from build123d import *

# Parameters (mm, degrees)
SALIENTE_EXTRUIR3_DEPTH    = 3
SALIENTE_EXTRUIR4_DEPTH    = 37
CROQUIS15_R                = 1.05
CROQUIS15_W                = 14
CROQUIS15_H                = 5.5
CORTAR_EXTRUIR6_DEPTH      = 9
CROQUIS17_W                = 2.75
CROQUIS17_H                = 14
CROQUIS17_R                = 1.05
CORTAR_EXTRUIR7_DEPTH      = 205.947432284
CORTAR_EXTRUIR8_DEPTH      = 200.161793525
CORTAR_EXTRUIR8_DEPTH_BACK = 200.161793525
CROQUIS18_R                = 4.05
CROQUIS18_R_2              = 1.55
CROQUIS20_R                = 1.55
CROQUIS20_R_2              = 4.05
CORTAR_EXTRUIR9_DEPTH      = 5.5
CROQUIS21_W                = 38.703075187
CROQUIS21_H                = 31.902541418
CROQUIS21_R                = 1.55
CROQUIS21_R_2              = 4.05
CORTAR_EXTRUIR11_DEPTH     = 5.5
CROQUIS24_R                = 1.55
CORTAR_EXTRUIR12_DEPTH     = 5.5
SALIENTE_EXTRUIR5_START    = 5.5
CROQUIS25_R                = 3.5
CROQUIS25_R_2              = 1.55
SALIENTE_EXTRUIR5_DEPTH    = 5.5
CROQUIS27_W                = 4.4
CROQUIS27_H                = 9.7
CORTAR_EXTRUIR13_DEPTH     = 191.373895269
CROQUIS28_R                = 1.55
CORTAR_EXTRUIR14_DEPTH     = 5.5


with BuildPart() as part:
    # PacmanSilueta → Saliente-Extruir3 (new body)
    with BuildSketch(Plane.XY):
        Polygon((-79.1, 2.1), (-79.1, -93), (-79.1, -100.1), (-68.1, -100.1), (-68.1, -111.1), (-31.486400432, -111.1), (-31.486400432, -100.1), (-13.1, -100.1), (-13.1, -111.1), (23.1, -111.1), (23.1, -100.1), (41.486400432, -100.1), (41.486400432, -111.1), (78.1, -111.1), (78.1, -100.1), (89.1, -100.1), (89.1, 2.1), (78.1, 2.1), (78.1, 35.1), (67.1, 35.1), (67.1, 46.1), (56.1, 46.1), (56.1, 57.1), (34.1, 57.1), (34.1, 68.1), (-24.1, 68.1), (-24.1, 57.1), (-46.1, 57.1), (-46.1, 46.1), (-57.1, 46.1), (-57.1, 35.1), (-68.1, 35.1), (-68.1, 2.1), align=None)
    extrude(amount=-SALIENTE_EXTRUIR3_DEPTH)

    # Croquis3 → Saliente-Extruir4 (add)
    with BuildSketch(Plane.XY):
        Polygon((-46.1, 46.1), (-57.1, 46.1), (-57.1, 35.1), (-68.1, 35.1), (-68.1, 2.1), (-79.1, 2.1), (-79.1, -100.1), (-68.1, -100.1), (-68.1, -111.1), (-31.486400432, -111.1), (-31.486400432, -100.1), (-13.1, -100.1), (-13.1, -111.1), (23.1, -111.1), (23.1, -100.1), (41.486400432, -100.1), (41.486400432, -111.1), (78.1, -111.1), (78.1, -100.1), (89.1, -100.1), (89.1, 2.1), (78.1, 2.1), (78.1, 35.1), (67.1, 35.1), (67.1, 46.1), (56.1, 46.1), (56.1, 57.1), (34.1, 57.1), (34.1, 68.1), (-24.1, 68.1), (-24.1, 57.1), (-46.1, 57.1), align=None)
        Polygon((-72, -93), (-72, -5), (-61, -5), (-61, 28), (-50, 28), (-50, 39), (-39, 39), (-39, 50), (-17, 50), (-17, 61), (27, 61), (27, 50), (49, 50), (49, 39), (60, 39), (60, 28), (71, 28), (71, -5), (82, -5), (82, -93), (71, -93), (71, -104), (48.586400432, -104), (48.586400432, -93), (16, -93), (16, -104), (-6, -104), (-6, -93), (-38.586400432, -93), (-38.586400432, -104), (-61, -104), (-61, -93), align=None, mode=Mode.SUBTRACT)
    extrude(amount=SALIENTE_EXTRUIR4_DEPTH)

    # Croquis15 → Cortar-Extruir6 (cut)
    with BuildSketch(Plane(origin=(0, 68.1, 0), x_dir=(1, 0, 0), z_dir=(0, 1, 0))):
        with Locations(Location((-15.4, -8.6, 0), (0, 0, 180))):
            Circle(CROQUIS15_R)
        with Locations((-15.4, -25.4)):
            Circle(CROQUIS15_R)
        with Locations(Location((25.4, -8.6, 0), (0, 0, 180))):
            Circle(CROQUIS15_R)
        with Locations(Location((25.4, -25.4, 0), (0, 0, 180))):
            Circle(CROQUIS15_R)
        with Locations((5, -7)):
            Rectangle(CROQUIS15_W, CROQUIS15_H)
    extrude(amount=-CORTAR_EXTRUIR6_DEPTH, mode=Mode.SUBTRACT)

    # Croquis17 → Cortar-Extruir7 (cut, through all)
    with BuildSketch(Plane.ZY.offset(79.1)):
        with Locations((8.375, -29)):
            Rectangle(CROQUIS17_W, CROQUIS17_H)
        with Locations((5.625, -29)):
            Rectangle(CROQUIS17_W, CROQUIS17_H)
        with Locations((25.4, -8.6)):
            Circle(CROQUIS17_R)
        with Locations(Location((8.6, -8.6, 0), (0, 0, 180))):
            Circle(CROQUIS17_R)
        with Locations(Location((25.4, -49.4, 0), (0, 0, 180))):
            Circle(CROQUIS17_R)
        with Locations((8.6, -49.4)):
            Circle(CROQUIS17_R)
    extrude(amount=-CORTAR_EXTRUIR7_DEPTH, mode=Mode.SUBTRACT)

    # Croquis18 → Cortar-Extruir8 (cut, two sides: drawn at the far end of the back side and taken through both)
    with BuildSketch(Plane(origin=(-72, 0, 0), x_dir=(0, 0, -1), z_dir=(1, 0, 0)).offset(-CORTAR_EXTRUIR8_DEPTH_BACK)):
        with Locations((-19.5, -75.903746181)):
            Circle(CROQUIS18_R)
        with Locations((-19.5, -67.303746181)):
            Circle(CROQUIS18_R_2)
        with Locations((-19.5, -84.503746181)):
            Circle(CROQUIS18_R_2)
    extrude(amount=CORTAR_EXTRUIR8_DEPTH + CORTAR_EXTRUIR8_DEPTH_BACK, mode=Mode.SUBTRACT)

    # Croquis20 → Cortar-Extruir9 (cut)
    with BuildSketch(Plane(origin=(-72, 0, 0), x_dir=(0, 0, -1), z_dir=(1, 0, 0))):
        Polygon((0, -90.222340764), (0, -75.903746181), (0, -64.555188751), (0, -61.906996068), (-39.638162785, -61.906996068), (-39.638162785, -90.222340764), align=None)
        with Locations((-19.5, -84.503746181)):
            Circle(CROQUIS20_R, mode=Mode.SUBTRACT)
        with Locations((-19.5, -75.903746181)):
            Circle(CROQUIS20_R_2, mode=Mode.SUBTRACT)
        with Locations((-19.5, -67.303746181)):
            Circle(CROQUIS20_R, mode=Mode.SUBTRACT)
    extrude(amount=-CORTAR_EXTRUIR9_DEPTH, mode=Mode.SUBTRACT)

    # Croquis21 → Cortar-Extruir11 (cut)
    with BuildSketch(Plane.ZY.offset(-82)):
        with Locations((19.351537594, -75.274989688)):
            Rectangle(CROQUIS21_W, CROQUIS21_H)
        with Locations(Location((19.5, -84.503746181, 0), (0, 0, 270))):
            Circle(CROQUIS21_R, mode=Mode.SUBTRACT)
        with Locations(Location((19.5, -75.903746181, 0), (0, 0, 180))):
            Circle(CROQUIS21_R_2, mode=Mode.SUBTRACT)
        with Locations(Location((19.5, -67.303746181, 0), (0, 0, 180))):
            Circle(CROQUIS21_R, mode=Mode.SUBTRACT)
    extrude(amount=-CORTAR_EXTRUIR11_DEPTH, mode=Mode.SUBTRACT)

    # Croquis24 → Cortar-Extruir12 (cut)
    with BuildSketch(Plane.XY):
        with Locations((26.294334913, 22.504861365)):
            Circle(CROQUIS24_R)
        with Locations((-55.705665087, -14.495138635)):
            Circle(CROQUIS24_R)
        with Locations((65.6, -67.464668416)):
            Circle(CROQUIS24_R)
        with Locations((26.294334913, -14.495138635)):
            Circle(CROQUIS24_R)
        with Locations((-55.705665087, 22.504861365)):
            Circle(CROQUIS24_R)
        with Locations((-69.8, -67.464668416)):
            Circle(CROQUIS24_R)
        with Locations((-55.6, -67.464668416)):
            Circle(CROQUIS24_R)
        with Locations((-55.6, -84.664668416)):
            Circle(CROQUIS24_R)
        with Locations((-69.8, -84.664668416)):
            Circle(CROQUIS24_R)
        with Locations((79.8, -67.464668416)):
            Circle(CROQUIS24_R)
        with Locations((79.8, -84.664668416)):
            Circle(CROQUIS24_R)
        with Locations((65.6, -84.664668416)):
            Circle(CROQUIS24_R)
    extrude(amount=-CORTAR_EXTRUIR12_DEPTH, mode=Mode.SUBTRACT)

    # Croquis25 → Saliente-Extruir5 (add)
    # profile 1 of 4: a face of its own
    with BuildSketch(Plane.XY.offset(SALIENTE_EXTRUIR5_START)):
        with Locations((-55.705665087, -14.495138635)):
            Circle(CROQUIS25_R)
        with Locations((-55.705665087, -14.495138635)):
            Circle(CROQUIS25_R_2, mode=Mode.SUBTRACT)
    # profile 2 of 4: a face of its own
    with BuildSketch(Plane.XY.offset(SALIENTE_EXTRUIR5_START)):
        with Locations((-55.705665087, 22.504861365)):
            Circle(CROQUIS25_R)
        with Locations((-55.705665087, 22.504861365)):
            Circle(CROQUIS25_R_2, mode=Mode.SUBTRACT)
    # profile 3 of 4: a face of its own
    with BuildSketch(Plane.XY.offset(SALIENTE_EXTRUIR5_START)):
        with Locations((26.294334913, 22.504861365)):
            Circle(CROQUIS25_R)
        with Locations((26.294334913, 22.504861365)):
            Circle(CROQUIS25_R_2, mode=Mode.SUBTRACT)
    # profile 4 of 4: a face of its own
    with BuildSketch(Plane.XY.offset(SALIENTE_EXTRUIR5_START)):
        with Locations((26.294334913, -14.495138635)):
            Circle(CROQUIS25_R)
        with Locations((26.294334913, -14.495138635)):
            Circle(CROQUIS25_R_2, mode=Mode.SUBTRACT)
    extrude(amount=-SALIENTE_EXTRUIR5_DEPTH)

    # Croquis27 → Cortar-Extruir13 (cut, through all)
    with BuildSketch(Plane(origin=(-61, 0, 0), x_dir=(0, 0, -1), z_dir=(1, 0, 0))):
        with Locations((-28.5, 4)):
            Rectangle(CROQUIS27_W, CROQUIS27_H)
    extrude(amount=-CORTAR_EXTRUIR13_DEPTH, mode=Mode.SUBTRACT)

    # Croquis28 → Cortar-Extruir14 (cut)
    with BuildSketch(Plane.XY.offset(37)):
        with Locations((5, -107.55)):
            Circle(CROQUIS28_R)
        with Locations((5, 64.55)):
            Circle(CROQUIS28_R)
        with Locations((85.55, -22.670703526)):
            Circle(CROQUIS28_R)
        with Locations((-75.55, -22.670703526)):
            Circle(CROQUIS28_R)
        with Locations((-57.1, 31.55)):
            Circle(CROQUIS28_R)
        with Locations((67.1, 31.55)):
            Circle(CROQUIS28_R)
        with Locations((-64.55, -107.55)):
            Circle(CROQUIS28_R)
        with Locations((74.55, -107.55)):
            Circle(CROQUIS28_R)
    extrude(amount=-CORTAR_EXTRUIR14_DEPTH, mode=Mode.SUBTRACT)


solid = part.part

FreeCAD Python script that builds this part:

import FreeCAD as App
import Part
import Sketcher

V = App.Vector


def add_polygon(sketch, points):
    """Adds a closed chain of lines whose ends are joined by coincident constraints."""
    first, n = sketch.GeometryCount, len(points)
    for a, b in zip(points, points[1:] + points[:1]):
        sketch.addGeometry(Part.LineSegment(App.Vector(*a, 0), App.Vector(*b, 0)), False)
    for i in range(n):
        sketch.addConstraint(Sketcher.Constraint("Coincident", first + i, 2, first + (i + 1) % n, 1))

doc = App.newDocument("Part")
params = doc.addObject("Spreadsheet::Sheet", "Params")
for row, (alias, value) in enumerate([
    ("sketch1_width", "11 mm"),
    ("sketch1_width2", "22 mm"),
    ("sketch1_height", "33 mm"),
    ("sketch1_width3", "36.2 mm"),
    ("sketch1_width4", "58.2 mm"),
    ("pad1_length", "3 mm"),
    ("sketch2_width", "11 mm"),
    ("sketch2_width2", "22 mm"),
    ("sketch2_width3", "44 mm"),
    ("sketch2_height", "33 mm"),
    ("sketch2_height2", "88 mm"),
    ("pad2_length", "37 mm"),
    ("sketch3_diameter", "2.1 mm"),
    ("sketch3_width", "14 mm"),
    ("sketch3_height", "5.5 mm"),
    ("pocket1_length", "9 mm"),
    ("sketch4_diameter", "2.1 mm"),
    ("sketch4_width", "14 mm"),
    ("sketch4_height", "5.5 mm"),
    ("sketch5_diameter", "8.1 mm"),
    ("sketch5_diameter2", "3.1 mm"),
    ("sketch6_diameter", "3.1 mm"),
    ("sketch6_diameter2", "8.1 mm"),
    ("pocket4_length", "5.5 mm"),
    ("sketch7_diameter", "3.1 mm"),
    ("sketch7_diameter2", "8.1 mm"),
    ("pocket5_length", "5.5 mm"),
    ("sketch8_diameter", "3.1 mm"),
    ("pocket6_length", "5.5 mm"),
    ("sketch9_diameter", "7 mm"),
    ("sketch9_diameter2", "3.1 mm"),
    ("pad3_length", "5.5 mm"),
    ("sketch10_width", "9.7 mm"),
    ("sketch10_height", "4.4 mm"),
    ("sketch11_diameter", "3.1 mm"),
    ("pocket8_length", "5.5 mm"),
], start=1):
    params.set(f"A{row}", alias)
    params.set(f"B{row}", "=" + value)
    params.setAlias(f"B{row}", alias)

body = doc.addObject("PartDesign::Body", "Body")

# Sketch on XY plane
sketch1 = doc.addObject("Sketcher::SketchObject", "Sketch")
body.addObject(sketch1)
sketch1.AttachmentSupport = (doc.XY_Plane, [""])
sketch1.MapMode = "FlatFace"
add_polygon(sketch1, [(-79, 2), (-79, -100), (-68, -100), (-68, -111), (-31, -111), (-31, -100), (-13, -100), (-13, -111), (23, -111), (23, -100), (41, -100), (41, -111), (78, -111), (78, -100), (89, -100), (89, 2), (78, 2), (78, 35), (67, 35), (67, 46), (56, 46), (56, 57), (34, 57), (34, 68), (-24, 68), (-24, 57), (-46, 57), (-46, 46), (-57, 46), (-57, 35), (-68, 35), (-68, 2)])  # lines 0-31
sketch1.addConstraint([
    Sketcher.Constraint("Vertical", 0),
    Sketcher.Constraint("Horizontal", 1),
    Sketcher.Constraint("Vertical", 2),
    Sketcher.Constraint("Horizontal", 3),
    Sketcher.Constraint("Vertical", 4),
    Sketcher.Constraint("Horizontal", 5),
    Sketcher.Constraint("Vertical", 6),
    Sketcher.Constraint("Horizontal", 7),
    Sketcher.Constraint("Vertical", 8),
    Sketcher.Constraint("Horizontal", 9),
    Sketcher.Constraint("Vertical", 10),
    Sketcher.Constraint("Horizontal", 11),
    Sketcher.Constraint("Vertical", 12),
    Sketcher.Constraint("Horizontal", 13),
    Sketcher.Constraint("Vertical", 14),
    Sketcher.Constraint("Horizontal", 15),
    Sketcher.Constraint("Vertical", 16),
    Sketcher.Constraint("Horizontal", 17),
    Sketcher.Constraint("Vertical", 18),
    Sketcher.Constraint("Horizontal", 19),
    Sketcher.Constraint("Vertical", 20),
    Sketcher.Constraint("Horizontal", 21),
    Sketcher.Constraint("Vertical", 22),
    Sketcher.Constraint("Horizontal", 23),
    Sketcher.Constraint("Vertical", 24),
    Sketcher.Constraint("Horizontal", 25),
    Sketcher.Constraint("Vertical", 26),
    Sketcher.Constraint("Horizontal", 27),
    Sketcher.Constraint("Vertical", 28),
    Sketcher.Constraint("Horizontal", 29),
    Sketcher.Constraint("Vertical", 30),
    Sketcher.Constraint("Horizontal", 31),
    Sketcher.Constraint("Horizontal", 1, 2, 4, 2),
    Sketcher.Constraint("Horizontal", 3, 2, 6, 2),
    Sketcher.Constraint("Horizontal", 5, 2, 8, 2),
    Sketcher.Constraint("Horizontal", 7, 2, 10, 2),
    Sketcher.Constraint("Horizontal", 9, 2, 12, 2),
    Sketcher.Constraint("Horizontal", 21, 2, 24, 2),
    Sketcher.Constraint("Horizontal", 19, 2, 26, 2),
    Sketcher.Constraint("Horizontal", 17, 2, 28, 2),
    Sketcher.Constraint("Horizontal", 15, 2, 30, 2),
    Sketcher.Constraint("Vertical", 12, 2, 15, 2),
    Sketcher.Constraint("Vertical", 2, 2, 29, 2),
    Sketcher.Constraint("Equal", 5, 9),
    Sketcher.Constraint("Equal", 3, 11),
    Sketcher.Constraint("Equal", 1, 13),
    Sketcher.Constraint("Equal", 15, 17),
    Sketcher.Constraint("Equal", 17, 19),
    Sketcher.Constraint("Equal", 21, 25),
    Sketcher.Constraint("Equal", 19, 27),
    Sketcher.Constraint("Equal", 27, 29),
    Sketcher.Constraint("Equal", 31, 2),
    Sketcher.Constraint("Equal", 12, 18),
    Sketcher.Constraint("Equal", 18, 20),
    Sketcher.Constraint("Equal", 20, 22),
    Sketcher.Constraint("DistanceX", 1, 1, 1, 2, 11.0),
    Sketcher.Constraint("DistanceX", 21, 2, 21, 1, 22.0),
    Sketcher.Constraint("DistanceY", 16, 1, 16, 2, 33.0),
    Sketcher.Constraint("DistanceX", 7, 1, 7, 2, 36.2),
    Sketcher.Constraint("DistanceX", 23, 2, 23, 1, 58.2),
    Sketcher.Constraint("DistanceY", 0, 2, 0, 1, 102.2),
    Sketcher.Constraint("DistanceX", 0, 2, -1, 1, 79.1),
    Sketcher.Constraint("DistanceY", 0, 2, -1, 1, 100.1),
    Sketcher.Constraint("DistanceX", 3, 1, 3, 2, 36.6136),
])
sketch1.setExpression("Constraints[87]", "Params.sketch1_width")
sketch1.setExpression("Constraints[88]", "Params.sketch1_width2")
sketch1.setExpression("Constraints[89]", "Params.sketch1_height")
sketch1.setExpression("Constraints[90]", "Params.sketch1_width3")
sketch1.setExpression("Constraints[91]", "Params.sketch1_width4")
pad1 = doc.addObject("PartDesign::Pad", "Pad")
body.addObject(pad1)
pad1.Profile = sketch1
pad1.setExpression("Length", "Params.pad1_length")
pad1.Reversed = True

# Sketch on XY plane
sketch2 = doc.addObject("Sketcher::SketchObject", "Sketch001")
body.addObject(sketch2)
sketch2.AttachmentSupport = (doc.XY_Plane, [""])
sketch2.MapMode = "FlatFace"
add_polygon(sketch2, [(-46, 46), (-57, 46), (-57, 35), (-68, 35), (-68, 2), (-79, 2), (-79, -100), (-68, -100), (-68, -111), (-31, -111), (-31, -100), (-13, -100), (-13, -111), (23, -111), (23, -100), (41, -100), (41, -111), (78, -111), (78, -100), (89, -100), (89, 2), (78, 2), (78, 35), (67, 35), (67, 46), (56, 46), (56, 57), (34, 57), (34, 68), (-24, 68), (-24, 57), (-46, 57)])  # lines 0-31
add_polygon(sketch2, [(-61, -93), (-72, -93), (-72, -5), (-61, -5), (-61, 28), (-50, 28), (-50, 39), (-39, 39), (-39, 50), (-17, 50), (-17, 61), (27, 61), (27, 50), (49, 50), (49, 39), (60, 39), (60, 28), (71, 28), (71, -5), (82, -5), (82, -93), (71, -93), (71, -104), (49, -104), (49, -93), (16, -93), (16, -104), (-6, -104), (-6, -93), (-39, -93), (-39, -104), (-61, -104)])  # lines 32-63
sketch2.addConstraint([
    Sketcher.Constraint("Horizontal", 0),
    Sketcher.Constraint("Vertical", 1),
    Sketcher.Constraint("Horizontal", 2),
    Sketcher.Constraint("Vertical", 3),
    Sketcher.Constraint("Horizontal", 4),
    Sketcher.Constraint("Vertical", 5),
    Sketcher.Constraint("Horizontal", 6),
    Sketcher.Constraint("Vertical", 7),
    Sketcher.Constraint("Horizontal", 8),
    Sketcher.Constraint("Vertical", 9),
    Sketcher.Constraint("Horizontal", 10),
    Sketcher.Constraint("Vertical", 11),
    Sketcher.Constraint("Horizontal", 12),
    Sketcher.Constraint("Vertical", 13),
    Sketcher.Constraint("Horizontal", 14),
    Sketcher.Constraint("Vertical", 15),
    Sketcher.Constraint("Horizontal", 16),
    Sketcher.Constraint("Vertical", 17),
    Sketcher.Constraint("Horizontal", 18),
    Sketcher.Constraint("Vertical", 19),
    Sketcher.Constraint("Horizontal", 20),
    Sketcher.Constraint("Vertical", 21),
    Sketcher.Constraint("Horizontal", 22),
    Sketcher.Constraint("Vertical", 23),
    Sketcher.Constraint("Horizontal", 24),
    Sketcher.Constraint("Vertical", 25),
    Sketcher.Constraint("Horizontal", 26),
    Sketcher.Constraint("Vertical", 27),
    Sketcher.Constraint("Horizontal", 28),
    Sketcher.Constraint("Vertical", 29),
    Sketcher.Constraint("Horizontal", 30),
    Sketcher.Constraint("Vertical", 31),
    Sketcher.Constraint("Horizontal", 32),
    Sketcher.Constraint("Vertical", 33),
    Sketcher.Constraint("Horizontal", 34),
    Sketcher.Constraint("Vertical", 35),
    Sketcher.Constraint("Horizontal", 36),
    Sketcher.Constraint("Vertical", 37),
    Sketcher.Constraint("Horizontal", 38),
    Sketcher.Constraint("Vertical", 39),
    Sketcher.Constraint("Horizontal", 40),
    Sketcher.Constraint("Vertical", 41),
    Sketcher.Constraint("Horizontal", 42),
    Sketcher.Constraint("Vertical", 43),
    Sketcher.Constraint("Horizontal", 44),
    Sketcher.Constraint("Vertical", 45),
    Sketcher.Constraint("Horizontal", 46),
    Sketcher.Constraint("Vertical", 47),
    Sketcher.Constraint("Horizontal", 48),
    Sketcher.Constraint("Vertical", 49),
    Sketcher.Constraint("Horizontal", 50),
    Sketcher.Constraint("Vertical", 51),
    Sketcher.Constraint("Horizontal", 52),
    Sketcher.Constraint("Vertical", 53),
    Sketcher.Constraint("Horizontal", 54),
    Sketcher.Constraint("Vertical", 55),
    Sketcher.Constraint("Horizontal", 56),
    Sketcher.Constraint("Vertical", 57),
    Sketcher.Constraint("Horizontal", 58),
    Sketcher.Constraint("Vertical", 59),
    Sketcher.Constraint("Horizontal", 60),
    Sketcher.Constraint("Vertical", 61),
    Sketcher.Constraint("Horizontal", 62),
    Sketcher.Constraint("Vertical", 63),
    Sketcher.Constraint("Horizontal", 6, 2, 9, 2),
    Sketcher.Constraint("Horizontal", 8, 2, 11, 2),
    Sketcher.Constraint("Horizontal", 10, 2, 13, 2),
    Sketcher.Constraint("Horizontal", 12, 2, 15, 2),
    Sketcher.Constraint("Horizontal", 14, 2, 17, 2),
    Sketcher.Constraint("Horizontal", 4, 2, 19, 2),
    Sketcher.Constraint("Horizontal", 2, 2, 21, 2),
    Sketcher.Constraint("Horizontal", 0, 2, 23, 2),
    Sketcher.Constraint("Horizontal", 26, 2, 29, 2),
    Sketcher.Constraint("Horizontal", 40, 2, 43, 2),
    Sketcher.Constraint("Horizontal", 38, 2, 45, 2),
    Sketcher.Constraint("Horizontal", 36, 2, 47, 2),
    Sketcher.Constraint("Horizontal", 34, 2, 49, 2),
    Sketcher.Constraint("Horizontal", 32, 2, 51, 2),
    Sketcher.Constraint("Horizontal", 52, 2, 55, 2),
    Sketcher.Constraint("Horizontal", 54, 2, 57, 2),
    Sketcher.Constraint("Horizontal", 56, 2, 59, 2),
    Sketcher.Constraint("Horizontal", 58, 2, 61, 2),
    Sketcher.Constraint("Vertical", 3, 2, 6, 2),
    Sketcher.Constraint("Vertical", 17, 2, 20, 2),
    Sketcher.Constraint("Vertical", 49, 2, 52, 2),
    Sketcher.Constraint("Vertical", 35, 2, 62, 2),
    Sketcher.Constraint("Equal", 0, 2),
    Sketcher.Constraint("Equal", 2, 4),
    Sketcher.Constraint("Equal", 10, 14),
    Sketcher.Constraint("Equal", 8, 16),
    Sketcher.Constraint("Equal", 6, 18),
    Sketcher.Constraint("Equal", 20, 22),
    Sketcher.Constraint("Equal", 22, 24),
    Sketcher.Constraint("Equal", 26, 30),
    Sketcher.Constraint("Equal", 24, 32),
    Sketcher.Constraint("Equal", 34, 36),
    Sketcher.Constraint("Equal", 36, 38),
    Sketcher.Constraint("Equal", 30, 40),
    Sketcher.Constraint("Equal", 40, 44),
    Sketcher.Constraint("Equal", 38, 46),
    Sketcher.Constraint("Equal", 46, 48),
    Sketcher.Constraint("Equal", 48, 50),
    Sketcher.Constraint("Equal", 44, 58),
    Sketcher.Constraint("Equal", 56, 60),
    Sketcher.Constraint("Equal", 54, 62),
    Sketcher.Constraint("Equal", 52, 1),
    Sketcher.Constraint("Equal", 1, 7),
    Sketcher.Constraint("Equal", 23, 25),
    Sketcher.Constraint("Equal", 25, 27),
    Sketcher.Constraint("Equal", 21, 35),
    Sketcher.Constraint("Equal", 31, 37),
    Sketcher.Constraint("Equal", 37, 39),
    Sketcher.Constraint("Equal", 39, 41),
    Sketcher.Constraint("Equal", 47, 53),
    Sketcher.Constraint("DistanceX", 0, 2, 0, 1, 11.0),
    Sketcher.Constraint("DistanceX", 26, 2, 26, 1, 22.0),
    Sketcher.Constraint("DistanceX", 42, 1, 42, 2, 44.0),
    Sketcher.Constraint("DistanceY", 3, 2, 3, 1, 33.0),
    Sketcher.Constraint("DistanceY", 33, 1, 33, 2, 88.0),
    Sketcher.Constraint("DistanceX", 12, 1, 12, 2, 36.2),
    Sketcher.Constraint("DistanceX", 28, 2, 28, 1, 58.2),
    Sketcher.Constraint("DistanceY", 5, 2, 5, 1, 102.2),
    Sketcher.Constraint("DistanceX", 32, 2, -1, 1, 72.0),
    Sketcher.Constraint("DistanceY", 32, 2, -1, 1, 93.0),
    Sketcher.Constraint("DistanceX", 0, 2, -1, 1, 57.1),
    Sketcher.Constraint("DistanceY", -1, 1, 0, 2, 46.1),
    Sketcher.Constraint("DistanceX", 8, 1, 8, 2, 36.6136),
    Sketcher.Constraint("DistanceX", 54, 2, 54, 1, 22.4136),
])
sketch2.setExpression("Constraints[178]", "Params.sketch2_width")
sketch2.setExpression("Constraints[179]", "Params.sketch2_width2")
sketch2.setExpression("Constraints[180]", "Params.sketch2_width3")
sketch2.setExpression("Constraints[181]", "Params.sketch2_height")
sketch2.setExpression("Constraints[182]", "Params.sketch2_height2")
pad2 = doc.addObject("PartDesign::Pad", "Pad001")
body.addObject(pad2)
pad2.Profile = sketch2
pad2.setExpression("Length", "Params.pad2_length")

# Sketch on XZ plane
sketch3 = doc.addObject("Sketcher::SketchObject", "Sketch002")
body.addObject(sketch3)
sketch3.AttachmentSupport = (doc.XZ_Plane, [""])
sketch3.MapMode = "FlatFace"
sketch3.AttachmentOffset = App.Placement(V(0, 0, -68.1), App.Rotation())
sketch3.addGeometry(Part.Circle(V(-15.4, 8.6, 0), V(0, 0, 1), 1.1), False)  # 0
sketch3.addGeometry(Part.Circle(V(-15.4, 25.4, 0), V(0, 0, 1), 1.1), False)  # 1
sketch3.addGeometry(Part.Circle(V(25.4, 8.6, 0), V(0, 0, 1), 1.1), False)  # 2
sketch3.addGeometry(Part.Circle(V(25.4, 25.4, 0), V(0, 0, 1), 1.1), False)  # 3
add_polygon(sketch3, [(-2, 4.2), (-2, 9.8), (12, 9.8), (12, 4.2)])  # lines 4-7
sketch3.addConstraint([
    Sketcher.Constraint("Vertical", 4),
    Sketcher.Constraint("Horizontal", 5),
    Sketcher.Constraint("Vertical", 6),
    Sketcher.Constraint("Horizontal", 7),
    Sketcher.Constraint("Equal", 0, 1),
    Sketcher.Constraint("Equal", 1, 2),
    Sketcher.Constraint("Equal", 2, 3),
    Sketcher.Constraint("Horizontal", 0, 3, 2, 3),
    Sketcher.Constraint("Horizontal", 1, 3, 3, 3),
    Sketcher.Constraint("Vertical", 0, 3, 1, 3),
    Sketcher.Constraint("Vertical", 2, 3, 3, 3),
    Sketcher.Constraint("Diameter", 0, 2.1),
    Sketcher.Constraint("DistanceX", 5, 1, 5, 2, 14.0),
    Sketcher.Constraint("DistanceY", 4, 1, 4, 2, 5.5),
    Sketcher.Constraint("DistanceX", 4, 2, -1, 1, 2.0),
    Sketcher.Constraint("DistanceX", 0, 3, -1, 1, 15.4),
    Sketcher.Constraint("DistanceY", -1, 1, 0, 3, 8.6),
    Sketcher.Constraint("DistanceY", -1, 1, 1, 3, 25.4),
    Sketcher.Constraint("DistanceX", -1, 1, 2, 3, 25.4),
    Sketcher.Constraint("DistanceY", -1, 1, 4, 2, 9.75),
])
sketch3.setExpression("Constraints[15]", "Params.sketch3_diameter")
sketch3.setExpression("Constraints[16]", "Params.sketch3_width")
sketch3.setExpression("Constraints[17]", "Params.sketch3_height")
pocket1 = doc.addObject("PartDesign::Pocket", "Pocket")
body.addObject(pocket1)
pocket1.Profile = sketch3
pocket1.setExpression("Length", "Params.pocket1_length")
pocket1.Reversed = True

# Sketch on YZ plane
sketch4 = doc.addObject("Sketcher::SketchObject", "Sketch003")
body.addObject(sketch4)
sketch4.AttachmentSupport = (doc.YZ_Plane, [""])
sketch4.MapMode = "FlatFace"
sketch4.AttachmentOffset = App.Placement(V(0, 0, -79.1), App.Rotation())
add_polygon(sketch4, [(-36, 9.8), (-22, 9.8), (-22, 4.2), (-36, 4.2)])  # lines 0-3
sketch4.addGeometry(Part.Circle(V(-8.6, 25.4, 0), V(0, 0, 1), 1.1), False)  # 4
sketch4.addGeometry(Part.Circle(V(-8.6, 8.6, 0), V(0, 0, 1), 1.1), False)  # 5
sketch4.addGeometry(Part.Circle(V(-49.4, 25.4, 0), V(0, 0, 1), 1.1), False)  # 6
sketch4.addGeometry(Part.Circle(V(-49.4, 8.6, 0), V(0, 0, 1), 1.1), False)  # 7
sketch4.addConstraint([
    Sketcher.Constraint("Horizontal", 0),
    Sketcher.Constraint("Vertical", 1),
    Sketcher.Constraint("Horizontal", 2),
    Sketcher.Constraint("Vertical", 3),
    Sketcher.Constraint("Equal", 4, 5),
    Sketcher.Constraint("Equal", 5, 6),
    Sketcher.Constraint("Equal", 6, 7),
    Sketcher.Constraint("Horizontal", 4, 3, 6, 3),
    Sketcher.Constraint("Horizontal", 5, 3, 7, 3),
    Sketcher.Constraint("Vertical", 4, 3, 5, 3),
    Sketcher.Constraint("Vertical", 6, 3, 7, 3),
    Sketcher.Constraint("Diameter", 4, 2.1),
    Sketcher.Constraint("DistanceX", 0, 1, 0, 2, 14.0),
    Sketcher.Constraint("DistanceY", 1, 2, 1, 1, 5.5),
    Sketcher.Constraint("DistanceX", 0, 2, -1, 1, 22.0),
    Sketcher.Constraint("DistanceX", 4, 3, -1, 1, 8.6),
    Sketcher.Constraint("DistanceY", -1, 1, 4, 3, 25.4),
    Sketcher.Constraint("DistanceY", -1, 1, 5, 3, 8.6),
    Sketcher.Constraint("DistanceX", 6, 3, -1, 1, 49.4),
    Sketcher.Constraint("DistanceY", -1, 1, 0, 2, 9.75),
])
sketch4.setExpression("Constraints[15]", "Params.sketch4_diameter")
sketch4.setExpression("Constraints[16]", "Params.sketch4_width")
sketch4.setExpression("Constraints[17]", "Params.sketch4_height")
pocket2 = doc.addObject("PartDesign::Pocket", "Pocket001")
body.addObject(pocket2)
pocket2.Profile = sketch4
pocket2.Type = "ThroughAll"
pocket2.Reversed = True

# Sketch on YZ plane
sketch5 = doc.addObject("Sketcher::SketchObject", "Sketch004")
body.addObject(sketch5)
sketch5.AttachmentSupport = (doc.YZ_Plane, [""])
sketch5.MapMode = "FlatFace"
sketch5.AttachmentOffset = App.Placement(V(0, 0, -72), App.Rotation())
sketch5.addGeometry([
    Part.Circle(V(-75.9, 19.5, 0), V(0, 0, 1), 4),
    Part.Circle(V(-67.3, 19.5, 0), V(0, 0, 1), 1.6),
    Part.Circle(V(-84.5, 19.5, 0), V(0, 0, 1), 1.6),
], False)
sketch5.addConstraint([
    Sketcher.Constraint("Equal", 1, 2),
    Sketcher.Constraint("Horizontal", 0, 3, 1, 3),
    Sketcher.Constraint("Horizontal", 1, 3, 2, 3),
    Sketcher.Constraint("Diameter", 0, 8.1),
    Sketcher.Constraint("Diameter", 1, 3.1),
    Sketcher.Constraint("DistanceY", -1, 1, 0, 3, 19.5),
    Sketcher.Constraint("DistanceX", 0, 3, 1, 3, 8.6),
    Sketcher.Constraint("DistanceX", 2, 3, 0, 3, 8.6),
    Sketcher.Constraint("DistanceX", 0, 3, -1, 1, 75.903746),
])
sketch5.setExpression("Constraints[3]", "Params.sketch5_diameter")
sketch5.setExpression("Constraints[4]", "Params.sketch5_diameter2")
pocket3 = doc.addObject("PartDesign::Pocket", "Pocket002")
body.addObject(pocket3)
pocket3.Profile = sketch5
pocket3.Type = "ThroughAll"
pocket3.Midplane = True

# Sketch on YZ plane
sketch6 = doc.addObject("Sketcher::SketchObject", "Sketch005")
body.addObject(sketch6)
sketch6.AttachmentSupport = (doc.YZ_Plane, [""])
sketch6.MapMode = "FlatFace"
sketch6.AttachmentOffset = App.Placement(V(0, 0, -72), App.Rotation())
add_polygon(sketch6, [(-90.2, 0), (-61.9, 0), (-61.9, 39.6), (-90.2, 39.6)])  # lines 0-3
sketch6.addGeometry(Part.Circle(V(-84.5, 19.5, 0), V(0, 0, 1), 1.6), False)  # 4
sketch6.addGeometry(Part.Circle(V(-75.9, 19.5, 0), V(0, 0, 1), 4), False)  # 5
sketch6.addGeometry(Part.Circle(V(-67.3, 19.5, 0), V(0, 0, 1), 1.6), False)  # 6
sketch6.addConstraint([
    Sketcher.Constraint("Horizontal", 0),
    Sketcher.Constraint("Vertical", 1),
    Sketcher.Constraint("Horizontal", 2),
    Sketcher.Constraint("Vertical", 3),
    Sketcher.Constraint("Equal", 4, 6),
    Sketcher.Constraint("PointOnObject", 0, 2, -1),
    Sketcher.Constraint("Horizontal", 4, 3, 5, 3),
    Sketcher.Constraint("Horizontal", 5, 3, 6, 3),
    Sketcher.Constraint("Diameter", 4, 3.1),
    Sketcher.Constraint("Diameter", 5, 8.1),
    Sketcher.Constraint("DistanceY", -1, 1, 4, 3, 19.5),
    Sketcher.Constraint("DistanceX", 4, 3, 5, 3, 8.6),
    Sketcher.Constraint("DistanceX", 5, 3, 6, 3, 8.6),
    Sketcher.Constraint("DistanceX", 0, 1, 0, 2, 28.315345),
    Sketcher.Constraint("DistanceY", 1, 1, 1, 2, 39.638163),
    Sketcher.Constraint("DistanceX", 2, 2, -1, 1, 90.222341),
    Sketcher.Constraint("DistanceX", 6, 3, 0, 2, 5.39675),
])
sketch6.setExpression("Constraints[12]", "Params.sketch6_diameter")
sketch6.setExpression("Constraints[13]", "Params.sketch6_diameter2")
pocket4 = doc.addObject("PartDesign::Pocket", "Pocket003")
body.addObject(pocket4)
pocket4.Profile = sketch6
pocket4.setExpression("Length", "Params.pocket4_length")

# Sketch on YZ plane
sketch7 = doc.addObject("Sketcher::SketchObject", "Sketch006")
body.addObject(sketch7)
sketch7.AttachmentSupport = (doc.YZ_Plane, [""])
sketch7.MapMode = "FlatFace"
sketch7.AttachmentOffset = App.Placement(V(0, 0, 82), App.Rotation())
add_polygon(sketch7, [(-59.3, 0), (-91.2, 0), (-91.2, 38.7), (-59.3, 38.7)])  # lines 0-3
sketch7.addGeometry(Part.Circle(V(-84.5, 19.5, 0), V(0, 0, 1), 1.6), False)  # 4
sketch7.addGeometry(Part.Circle(V(-75.9, 19.5, 0), V(0, 0, 1), 4), False)  # 5
sketch7.addGeometry(Part.Circle(V(-67.3, 19.5, 0), V(0, 0, 1), 1.6), False)  # 6
sketch7.addConstraint([
    Sketcher.Constraint("Horizontal", 0),
    Sketcher.Constraint("Vertical", 1),
    Sketcher.Constraint("Horizontal", 2),
    Sketcher.Constraint("Vertical", 3),
    Sketcher.Constraint("Equal", 4, 6),
    Sketcher.Constraint("PointOnObject", 0, 2, -1),
    Sketcher.Constraint("Horizontal", 4, 3, 5, 3),
    Sketcher.Constraint("Horizontal", 5, 3, 6, 3),
    Sketcher.Constraint("Diameter", 4, 3.1),
    Sketcher.Constraint("Diameter", 5, 8.1),
    Sketcher.Constraint("DistanceY", -1, 1, 4, 3, 19.5),
    Sketcher.Constraint("DistanceX", 4, 3, 5, 3, 8.6),
    Sketcher.Constraint("DistanceX", 5, 3, 6, 3, 8.6),
    Sketcher.Constraint("DistanceX", 0, 2, 0, 1, 31.902541),
    Sketcher.Constraint("DistanceY", 1, 1, 1, 2, 38.703075),
    Sketcher.Constraint("DistanceX", 0, 2, -1, 1, 91.22626),
    Sketcher.Constraint("DistanceX", 4, 3, -1, 1, 84.503746),
])
sketch7.setExpression("Constraints[12]", "Params.sketch7_diameter")
sketch7.setExpression("Constraints[13]", "Params.sketch7_diameter2")
pocket5 = doc.addObject("PartDesign::Pocket", "Pocket004")
body.addObject(pocket5)
pocket5.Profile = sketch7
pocket5.setExpression("Length", "Params.pocket5_length")
pocket5.Reversed = True

# Sketch on XY plane
sketch8 = doc.addObject("Sketcher::SketchObject", "Sketch007")
body.addObject(sketch8)
sketch8.AttachmentSupport = (doc.XY_Plane, [""])
sketch8.MapMode = "FlatFace"
sketch8.addGeometry([
    Part.Circle(V(26.3, 22.5, 0), V(0, 0, 1), 1.6),  # 0
    Part.Circle(V(-55.7, -14.5, 0), V(0, 0, 1), 1.6),  # 1
    Part.Circle(V(65.6, -67.5, 0), V(0, 0, 1), 1.6),  # 2
    Part.Circle(V(26.3, -14.5, 0), V(0, 0, 1), 1.6),  # 3
    Part.Circle(V(-55.7, 22.5, 0), V(0, 0, 1), 1.6),  # 4
    Part.Circle(V(-69.8, -67.5, 0), V(0, 0, 1), 1.6),  # 5
    Part.Circle(V(-55.6, -67.5, 0), V(0, 0, 1), 1.6),  # 6
    Part.Circle(V(-55.6, -84.7, 0), V(0, 0, 1), 1.6),  # 7
    Part.Circle(V(-69.8, -84.7, 0), V(0, 0, 1), 1.6),  # 8
    Part.Circle(V(79.8, -67.5, 0), V(0, 0, 1), 1.6),  # 9
    Part.Circle(V(79.8, -84.7, 0), V(0, 0, 1), 1.6),  # 10
    Part.Circle(V(65.6, -84.7, 0), V(0, 0, 1), 1.6),  # 11
], False)
sketch8.addConstraint([
    Sketcher.Constraint("Equal", 0, 1),
    Sketcher.Constraint("Equal", 1, 2),
    Sketcher.Constraint("Equal", 2, 3),
    Sketcher.Constraint("Equal", 3, 4),
    Sketcher.Constraint("Equal", 4, 5),
    Sketcher.Constraint("Equal", 5, 6),
    Sketcher.Constraint("Equal", 6, 7),
    Sketcher.Constraint("Equal", 7, 8),
    Sketcher.Constraint("Equal", 8, 9),
    Sketcher.Constraint("Equal", 9, 10),
    Sketcher.Constraint("Equal", 10, 11),
    Sketcher.Constraint("Horizontal", 1, 3, 3, 3),
    Sketcher.Constraint("Horizontal", 0, 3, 4, 3),
    Sketcher.Constraint("Horizontal", 2, 3, 5, 3),
    Sketcher.Constraint("Horizontal", 5, 3, 6, 3),
    Sketcher.Constraint("Horizontal", 7, 3, 8, 3),
    Sketcher.Constraint("Horizontal", 6, 3, 9, 3),
    Sketcher.Constraint("Horizontal", 8, 3, 10, 3),
    Sketcher.Constraint("Horizontal", 10, 3, 11, 3),
    Sketcher.Constraint("Vertical", 0, 3, 3, 3),
    Sketcher.Constraint("Vertical", 1, 3, 4, 3),
    Sketcher.Constraint("Vertical", 6, 3, 7, 3),
    Sketcher.Constraint("Vertical", 5, 3, 8, 3),
    Sketcher.Constraint("Vertical", 9, 3, 10, 3),
    Sketcher.Constraint("Vertical", 2, 3, 11, 3),
    Sketcher.Constraint("Diameter", 0, 3.1),
    Sketcher.Constraint("DistanceX", 1, 3, 0, 3, 82.0),
    Sketcher.Constraint("DistanceY", 1, 3, 0, 3, 37.0),
    Sketcher.Constraint("DistanceX", -1, 1, 2, 3, 65.6),
    Sketcher.Constraint("DistanceX", 5, 3, -1, 1, 69.8),
    Sketcher.Constraint("DistanceX", 6, 3, -1, 1, 55.6),
    Sketcher.Constraint("DistanceX", -1, 1, 9, 3, 79.8),
    Sketcher.Constraint("DistanceY", 7, 3, 6, 3, 17.2),
    Sketcher.Constraint("DistanceY", -1, 1, 0, 3, 22.504861),
    Sketcher.Constraint("DistanceY", 2, 3, -1, 1, 67.464668),
    Sketcher.Constraint("DistanceX", -1, 1, 0, 3, 26.294335),
])
sketch8.setExpression("Constraints[25]", "Params.sketch8_diameter")
pocket6 = doc.addObject("PartDesign::Pocket", "Pocket005")
body.addObject(pocket6)
pocket6.Profile = sketch8
pocket6.setExpression("Length", "Params.pocket6_length")

# Sketch on XY plane
sketch9 = doc.addObject("Sketcher::SketchObject", "Sketch008")
body.addObject(sketch9)
sketch9.AttachmentSupport = (doc.XY_Plane, [""])
sketch9.MapMode = "FlatFace"
sketch9.AttachmentOffset = App.Placement(V(0, 0, 5.5), App.Rotation())
sketch9.addGeometry([
    Part.Circle(V(-55.7, -14.5, 0), V(0, 0, 1), 3.5),  # 0
    Part.Circle(V(-55.7, -14.5, 0), V(0, 0, 1), 1.6),  # 1
    Part.Circle(V(-55.7, 22.5, 0), V(0, 0, 1), 3.5),  # 2
    Part.Circle(V(-55.7, 22.5, 0), V(0, 0, 1), 1.6),  # 3
    Part.Circle(V(26.3, 22.5, 0), V(0, 0, 1), 3.5),  # 4
    Part.Circle(V(26.3, 22.5, 0), V(0, 0, 1), 1.6),  # 5
    Part.Circle(V(26.3, -14.5, 0), V(0, 0, 1), 3.5),  # 6
    Part.Circle(V(26.3, -14.5, 0), V(0, 0, 1), 1.6),  # 7
], False)
sketch9.addConstraint([
    Sketcher.Constraint("Coincident", 1, 3, 0, 3),
    Sketcher.Constraint("Coincident", 3, 3, 2, 3),
    Sketcher.Constraint("Coincident", 5, 3, 4, 3),
    Sketcher.Constraint("Coincident", 7, 3, 6, 3),
    Sketcher.Constraint("Equal", 0, 2),
    Sketcher.Constraint("Equal", 1, 3),
    Sketcher.Constraint("Equal", 2, 4),
    Sketcher.Constraint("Equal", 3, 5),
    Sketcher.Constraint("Equal", 4, 6),
    Sketcher.Constraint("Equal", 5, 7),
    Sketcher.Constraint("Horizontal", 3, 3, 4, 3),
    Sketcher.Constraint("Horizontal", 1, 3, 6, 3),
    Sketcher.Constraint("Vertical", 1, 3, 2, 3),
    Sketcher.Constraint("Vertical", 5, 3, 6, 3),
    Sketcher.Constraint("Diameter", 0, 7.0),
    Sketcher.Constraint("Diameter", 1, 3.1),
    Sketcher.Constraint("DistanceY", 0, 3, 2, 3, 37.0),
    Sketcher.Constraint("DistanceX", 2, 3, 4, 3, 82.0),
    Sketcher.Constraint("DistanceY", 0, 3, -1, 1, 14.495139),
    Sketcher.Constraint("DistanceX", 0, 3, -1, 1, 55.705665),
])
sketch9.setExpression("Constraints[14]", "Params.sketch9_diameter")
sketch9.setExpression("Constraints[15]", "Params.sketch9_diameter2")
pad3 = doc.addObject("PartDesign::Pad", "Pad002")
body.addObject(pad3)
pad3.Profile = sketch9
pad3.setExpression("Length", "Params.pad3_length")
pad3.Reversed = True

# Sketch on YZ plane
sketch10 = doc.addObject("Sketcher::SketchObject", "Sketch009")
body.addObject(sketch10)
sketch10.AttachmentSupport = (doc.YZ_Plane, [""])
sketch10.MapMode = "FlatFace"
sketch10.AttachmentOffset = App.Placement(V(0, 0, -61), App.Rotation())
add_polygon(sketch10, [(8.8, 30.7), (-0.8, 30.7), (-0.8, 26.3), (8.8, 26.3)])  # lines 0-3
sketch10.addConstraint([
    Sketcher.Constraint("Horizontal", 0),
    Sketcher.Constraint("Vertical", 1),
    Sketcher.Constraint("Horizontal", 2),
    Sketcher.Constraint("Vertical", 3),
    Sketcher.Constraint("DistanceX", 0, 2, 0, 1, 9.7),
    Sketcher.Constraint("DistanceY", 1, 2, 1, 1, 4.4),
    Sketcher.Constraint("DistanceY", -1, 1, 0, 2, 30.7),
    Sketcher.Constraint("DistanceX", 0, 2, -1, 1, 0.85),
])
sketch10.setExpression("Constraints[8]", "Params.sketch10_width")
sketch10.setExpression("Constraints[9]", "Params.sketch10_height")
pocket7 = doc.addObject("PartDesign::Pocket", "Pocket006")
body.addObject(pocket7)
pocket7.Profile = sketch10
pocket7.Type = "ThroughAll"

# Sketch on XY plane
sketch11 = doc.addObject("Sketcher::SketchObject", "Sketch010")
body.addObject(sketch11)
sketch11.AttachmentSupport = (doc.XY_Plane, [""])
sketch11.MapMode = "FlatFace"
sketch11.AttachmentOffset = App.Placement(V(0, 0, 37), App.Rotation())
sketch11.addGeometry([
    Part.Circle(V(5, -107.5, 0), V(0, 0, 1), 1.6),  # 0
    Part.Circle(V(5, 64.5, 0), V(0, 0, 1), 1.6),  # 1
    Part.Circle(V(85.5, -22.7, 0), V(0, 0, 1), 1.6),  # 2
    Part.Circle(V(-75.5, -22.7, 0), V(0, 0, 1), 1.6),  # 3
    Part.Circle(V(-57.1, 31.6, 0), V(0, 0, 1), 1.6),  # 4
    Part.Circle(V(67.1, 31.6, 0), V(0, 0, 1), 1.6),  # 5
    Part.Circle(V(-64.5, -107.5, 0), V(0, 0, 1), 1.6),  # 6
    Part.Circle(V(74.5, -107.5, 0), V(0, 0, 1), 1.6),  # 7
], False)
sketch11.addConstraint([
    Sketcher.Constraint("Equal", 0, 1),
    Sketcher.Constraint("Equal", 1, 2),
    Sketcher.Constraint("Equal", 2, 3),
    Sketcher.Constraint("Equal", 3, 4),
    Sketcher.Constraint("Equal", 4, 5),
    Sketcher.Constraint("Equal", 5, 6),
    Sketcher.Constraint("Equal", 6, 7),
    Sketcher.Constraint("Horizontal", 2, 3, 3, 3),
    Sketcher.Constraint("Horizontal", 4, 3, 5, 3),
    Sketcher.Constraint("Horizontal", 0, 3, 6, 3),
    Sketcher.Constraint("Horizontal", 6, 3, 7, 3),
    Sketcher.Constraint("Vertical", 0, 3, 1, 3),
    Sketcher.Constraint("Diameter", 0, 3.1),
    Sketcher.Constraint("DistanceX", -1, 1, 0, 3, 5.0),
    Sketcher.Constraint("DistanceY", 4, 3, 1, 3, 33.0),
    Sketcher.Constraint("DistanceX", 3, 3, 6, 3, 11.0),
    Sketcher.Constraint("DistanceX", 7, 3, 2, 3, 11.0),
    Sketcher.Constraint("DistanceX", 4, 3, -1, 1, 57.1),
    Sketcher.Constraint("DistanceX", -1, 1, 5, 3, 67.1),
    Sketcher.Constraint("DistanceY", 0, 3, 1, 3, 172.1),
    Sketcher.Constraint("DistanceX", 3, 3, 2, 3, 161.1),
    Sketcher.Constraint("DistanceY", 0, 3, -1, 1, 107.55),
    Sketcher.Constraint("DistanceX", -1, 1, 2, 3, 85.55),
    Sketcher.Constraint("DistanceY", 2, 3, -1, 1, 22.670704),
])
sketch11.setExpression("Constraints[12]", "Params.sketch11_diameter")
pocket8 = doc.addObject("PartDesign::Pocket", "Pocket007")
body.addObject(pocket8)
pocket8.Profile = sketch11
pocket8.setExpression("Length", "Params.pocket8_length")

doc.recompute()
